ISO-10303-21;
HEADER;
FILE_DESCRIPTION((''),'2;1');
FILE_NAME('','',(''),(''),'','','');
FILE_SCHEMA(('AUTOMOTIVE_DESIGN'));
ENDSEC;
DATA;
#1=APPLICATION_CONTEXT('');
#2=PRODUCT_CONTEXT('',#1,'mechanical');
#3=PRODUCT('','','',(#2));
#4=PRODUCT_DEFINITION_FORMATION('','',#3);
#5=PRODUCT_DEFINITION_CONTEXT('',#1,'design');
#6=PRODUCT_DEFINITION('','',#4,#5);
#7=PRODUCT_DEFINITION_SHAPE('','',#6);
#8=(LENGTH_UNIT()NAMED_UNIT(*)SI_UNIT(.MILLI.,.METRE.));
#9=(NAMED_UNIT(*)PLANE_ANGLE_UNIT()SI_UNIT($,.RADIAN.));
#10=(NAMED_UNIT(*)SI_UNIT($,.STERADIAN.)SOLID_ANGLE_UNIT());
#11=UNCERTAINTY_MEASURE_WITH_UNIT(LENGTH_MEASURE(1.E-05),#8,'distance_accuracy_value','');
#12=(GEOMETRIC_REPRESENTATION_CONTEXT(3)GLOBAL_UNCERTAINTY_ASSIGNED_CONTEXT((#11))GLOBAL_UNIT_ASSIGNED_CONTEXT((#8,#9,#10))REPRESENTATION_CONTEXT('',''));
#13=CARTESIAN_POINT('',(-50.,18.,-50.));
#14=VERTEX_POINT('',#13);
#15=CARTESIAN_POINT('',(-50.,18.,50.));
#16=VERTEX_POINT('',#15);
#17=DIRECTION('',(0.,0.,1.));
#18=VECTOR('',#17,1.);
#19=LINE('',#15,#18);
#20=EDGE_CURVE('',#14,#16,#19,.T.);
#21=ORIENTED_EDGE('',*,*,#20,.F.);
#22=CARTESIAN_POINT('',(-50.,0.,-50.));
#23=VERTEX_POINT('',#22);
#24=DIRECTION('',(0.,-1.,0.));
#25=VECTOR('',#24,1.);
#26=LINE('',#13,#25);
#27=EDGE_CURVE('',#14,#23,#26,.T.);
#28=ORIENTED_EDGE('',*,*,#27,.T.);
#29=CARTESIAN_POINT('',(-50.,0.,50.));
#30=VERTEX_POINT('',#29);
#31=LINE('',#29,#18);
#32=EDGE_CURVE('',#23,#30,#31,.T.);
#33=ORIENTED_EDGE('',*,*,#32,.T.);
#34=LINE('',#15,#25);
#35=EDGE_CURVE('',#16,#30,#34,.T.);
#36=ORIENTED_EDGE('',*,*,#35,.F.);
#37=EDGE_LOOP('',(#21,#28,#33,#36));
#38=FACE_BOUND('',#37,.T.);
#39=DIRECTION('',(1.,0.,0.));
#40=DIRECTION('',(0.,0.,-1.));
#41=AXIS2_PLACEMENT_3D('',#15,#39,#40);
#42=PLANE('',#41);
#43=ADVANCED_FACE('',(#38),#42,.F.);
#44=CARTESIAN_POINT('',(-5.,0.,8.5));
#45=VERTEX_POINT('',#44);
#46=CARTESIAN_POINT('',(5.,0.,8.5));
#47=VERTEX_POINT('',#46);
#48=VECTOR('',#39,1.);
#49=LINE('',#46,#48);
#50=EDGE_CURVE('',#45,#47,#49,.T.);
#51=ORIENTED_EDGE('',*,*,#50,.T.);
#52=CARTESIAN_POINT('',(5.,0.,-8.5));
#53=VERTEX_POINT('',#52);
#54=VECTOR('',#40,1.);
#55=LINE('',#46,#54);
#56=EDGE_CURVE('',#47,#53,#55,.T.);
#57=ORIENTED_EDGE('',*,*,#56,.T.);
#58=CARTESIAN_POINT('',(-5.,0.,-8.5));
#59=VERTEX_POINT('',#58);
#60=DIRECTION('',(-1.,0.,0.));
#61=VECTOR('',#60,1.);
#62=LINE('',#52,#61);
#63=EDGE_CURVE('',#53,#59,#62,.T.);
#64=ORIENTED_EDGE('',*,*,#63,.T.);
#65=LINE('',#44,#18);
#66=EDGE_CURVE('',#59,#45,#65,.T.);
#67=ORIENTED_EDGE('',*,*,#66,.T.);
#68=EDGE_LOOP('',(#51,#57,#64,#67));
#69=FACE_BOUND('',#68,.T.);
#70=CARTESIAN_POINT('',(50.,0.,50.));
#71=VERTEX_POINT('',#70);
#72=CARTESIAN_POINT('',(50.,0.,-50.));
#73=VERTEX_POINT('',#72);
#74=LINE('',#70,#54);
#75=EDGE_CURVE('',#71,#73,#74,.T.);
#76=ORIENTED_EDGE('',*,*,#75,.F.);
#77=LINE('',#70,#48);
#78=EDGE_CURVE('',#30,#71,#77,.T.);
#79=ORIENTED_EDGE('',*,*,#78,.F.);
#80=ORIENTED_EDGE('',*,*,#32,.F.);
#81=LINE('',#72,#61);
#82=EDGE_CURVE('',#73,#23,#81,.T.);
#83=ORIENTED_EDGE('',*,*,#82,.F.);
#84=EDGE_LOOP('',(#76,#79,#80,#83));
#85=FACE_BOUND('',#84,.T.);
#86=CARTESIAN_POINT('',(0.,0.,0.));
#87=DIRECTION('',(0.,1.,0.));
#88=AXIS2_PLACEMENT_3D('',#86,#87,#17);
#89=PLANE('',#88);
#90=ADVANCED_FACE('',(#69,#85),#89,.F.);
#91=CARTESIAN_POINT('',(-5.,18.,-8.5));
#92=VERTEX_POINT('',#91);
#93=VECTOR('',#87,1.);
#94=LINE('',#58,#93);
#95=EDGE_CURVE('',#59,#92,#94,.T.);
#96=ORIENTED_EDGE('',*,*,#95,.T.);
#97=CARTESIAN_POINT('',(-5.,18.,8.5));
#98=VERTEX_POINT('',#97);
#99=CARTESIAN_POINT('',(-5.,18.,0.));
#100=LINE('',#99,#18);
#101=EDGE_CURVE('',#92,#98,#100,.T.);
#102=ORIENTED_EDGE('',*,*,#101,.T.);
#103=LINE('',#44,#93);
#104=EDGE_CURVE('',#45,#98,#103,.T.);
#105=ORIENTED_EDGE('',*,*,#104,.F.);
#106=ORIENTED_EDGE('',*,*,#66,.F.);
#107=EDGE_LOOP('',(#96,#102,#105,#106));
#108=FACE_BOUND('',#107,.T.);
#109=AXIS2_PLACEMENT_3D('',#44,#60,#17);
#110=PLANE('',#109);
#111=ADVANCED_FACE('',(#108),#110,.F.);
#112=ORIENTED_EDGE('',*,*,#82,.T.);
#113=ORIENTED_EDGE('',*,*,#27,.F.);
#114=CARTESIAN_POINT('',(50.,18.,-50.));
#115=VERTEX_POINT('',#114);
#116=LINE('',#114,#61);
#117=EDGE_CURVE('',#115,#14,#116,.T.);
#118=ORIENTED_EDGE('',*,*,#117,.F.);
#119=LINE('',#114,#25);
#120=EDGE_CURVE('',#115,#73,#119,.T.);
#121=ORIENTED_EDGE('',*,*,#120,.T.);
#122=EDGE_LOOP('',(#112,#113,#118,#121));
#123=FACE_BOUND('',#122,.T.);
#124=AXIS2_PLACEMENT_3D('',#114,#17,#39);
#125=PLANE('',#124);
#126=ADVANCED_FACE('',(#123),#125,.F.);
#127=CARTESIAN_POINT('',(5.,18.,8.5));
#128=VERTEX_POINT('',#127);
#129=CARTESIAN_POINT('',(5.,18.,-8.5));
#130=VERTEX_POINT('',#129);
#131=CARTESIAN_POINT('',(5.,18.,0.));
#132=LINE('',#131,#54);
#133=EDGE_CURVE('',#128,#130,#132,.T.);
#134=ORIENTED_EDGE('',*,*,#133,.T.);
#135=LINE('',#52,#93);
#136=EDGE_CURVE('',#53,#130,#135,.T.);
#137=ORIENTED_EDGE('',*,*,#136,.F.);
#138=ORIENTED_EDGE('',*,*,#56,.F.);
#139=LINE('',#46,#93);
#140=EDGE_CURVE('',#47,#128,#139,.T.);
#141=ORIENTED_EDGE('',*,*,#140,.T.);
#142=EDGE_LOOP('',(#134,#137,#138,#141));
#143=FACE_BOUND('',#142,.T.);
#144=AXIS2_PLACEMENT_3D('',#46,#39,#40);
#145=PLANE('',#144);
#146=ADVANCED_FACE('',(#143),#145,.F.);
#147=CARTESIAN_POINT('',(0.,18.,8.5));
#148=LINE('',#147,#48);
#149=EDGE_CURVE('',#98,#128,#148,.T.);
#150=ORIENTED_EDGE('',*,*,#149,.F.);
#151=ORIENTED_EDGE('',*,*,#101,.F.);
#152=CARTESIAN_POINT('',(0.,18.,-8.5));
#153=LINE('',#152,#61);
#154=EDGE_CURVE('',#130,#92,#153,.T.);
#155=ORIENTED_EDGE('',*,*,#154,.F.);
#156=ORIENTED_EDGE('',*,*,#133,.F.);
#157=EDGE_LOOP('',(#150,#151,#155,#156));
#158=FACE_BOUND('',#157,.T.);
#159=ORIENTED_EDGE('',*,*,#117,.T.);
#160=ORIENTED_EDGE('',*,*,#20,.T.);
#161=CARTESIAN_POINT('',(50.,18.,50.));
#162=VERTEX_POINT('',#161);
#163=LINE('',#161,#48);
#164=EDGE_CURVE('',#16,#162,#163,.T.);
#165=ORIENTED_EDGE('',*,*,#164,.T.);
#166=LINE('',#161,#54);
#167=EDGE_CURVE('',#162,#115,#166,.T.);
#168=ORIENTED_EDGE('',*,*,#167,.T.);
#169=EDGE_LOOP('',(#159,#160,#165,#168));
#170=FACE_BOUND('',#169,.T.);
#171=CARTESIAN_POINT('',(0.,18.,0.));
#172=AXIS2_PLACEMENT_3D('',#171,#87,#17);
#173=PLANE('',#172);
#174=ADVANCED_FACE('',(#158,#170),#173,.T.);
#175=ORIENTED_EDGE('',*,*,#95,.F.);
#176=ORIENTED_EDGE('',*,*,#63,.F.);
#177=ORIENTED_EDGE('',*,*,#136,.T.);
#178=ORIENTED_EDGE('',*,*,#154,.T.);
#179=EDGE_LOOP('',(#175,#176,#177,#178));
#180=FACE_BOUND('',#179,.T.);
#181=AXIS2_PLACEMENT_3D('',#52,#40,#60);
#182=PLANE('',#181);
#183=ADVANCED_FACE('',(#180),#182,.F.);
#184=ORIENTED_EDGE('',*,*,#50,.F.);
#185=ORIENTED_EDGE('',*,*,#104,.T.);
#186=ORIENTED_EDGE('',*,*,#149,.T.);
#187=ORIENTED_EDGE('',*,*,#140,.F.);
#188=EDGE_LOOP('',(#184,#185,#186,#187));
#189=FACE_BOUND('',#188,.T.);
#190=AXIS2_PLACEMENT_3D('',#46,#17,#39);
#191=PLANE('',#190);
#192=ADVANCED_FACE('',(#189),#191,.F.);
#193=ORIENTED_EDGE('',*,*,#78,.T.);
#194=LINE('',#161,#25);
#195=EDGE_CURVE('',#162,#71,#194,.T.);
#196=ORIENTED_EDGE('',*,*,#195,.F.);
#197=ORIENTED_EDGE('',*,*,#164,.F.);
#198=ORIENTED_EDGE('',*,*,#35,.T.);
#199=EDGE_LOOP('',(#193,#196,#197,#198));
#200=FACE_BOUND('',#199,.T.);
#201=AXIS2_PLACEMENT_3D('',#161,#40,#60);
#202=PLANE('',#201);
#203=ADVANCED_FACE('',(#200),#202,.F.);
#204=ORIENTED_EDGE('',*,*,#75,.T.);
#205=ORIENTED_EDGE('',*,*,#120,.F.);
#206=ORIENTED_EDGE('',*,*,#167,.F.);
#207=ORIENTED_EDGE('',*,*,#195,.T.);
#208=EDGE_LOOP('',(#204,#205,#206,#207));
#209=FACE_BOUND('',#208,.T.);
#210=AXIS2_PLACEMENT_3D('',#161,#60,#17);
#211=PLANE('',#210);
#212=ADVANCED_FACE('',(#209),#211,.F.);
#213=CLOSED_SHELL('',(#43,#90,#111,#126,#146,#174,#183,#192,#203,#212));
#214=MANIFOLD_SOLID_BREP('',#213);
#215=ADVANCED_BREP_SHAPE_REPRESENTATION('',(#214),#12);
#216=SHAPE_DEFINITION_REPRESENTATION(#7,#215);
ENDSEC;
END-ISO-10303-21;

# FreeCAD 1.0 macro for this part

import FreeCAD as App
import Part
import Sketcher
Q = App.Units.Quantity


def add_polygon(sketch, points):
    """Adds a closed chain of lines whose ends are joined by coincident constraints."""
    first, n = sketch.GeometryCount, len(points)
    for a, b in zip(points, points[1:] + points[:1]):
        sketch.addGeometry(Part.LineSegment(App.Vector(*a, 0), App.Vector(*b, 0)), False)
    for i in range(n):
        sketch.addConstraint(Sketcher.Constraint("Coincident", first + i, 2, first + (i + 1) % n, 1))

doc = App.newDocument("Part")
body = doc.addObject("PartDesign::Body", "Body")

# Sketch on XZ plane
sketch1 = body.newObject("Sketcher::SketchObject", "Sketch")
sketch1.AttachmentSupport = (doc.getObject("XZ_Plane"), [""])
sketch1.MapMode = "FlatFace"
add_polygon(sketch1, [(-50, -50), (-50, 50), (50, 50), (50, -50)])  # lines 0-3
sketch1.addConstraint([
    Sketcher.Constraint("Vertical", 0),
    Sketcher.Constraint("Horizontal", 1),
    Sketcher.Constraint("Vertical", 2),
    Sketcher.Constraint("Horizontal", 3),
    Sketcher.Constraint("Symmetric", 0, 2, 2, 2, -1, 1),
    Sketcher.Constraint("Equal", 3, 0),
    Sketcher.Constraint("DistanceX", 1, 1, 1, 2, Q("100 mm")),
])
pad1 = body.newObject("PartDesign::Pad", "Pad")
pad1.Profile = sketch1
pad1.Length = 18
pad1.Reversed = True

# Sketch on XZ plane
sketch2 = body.newObject("Sketcher::SketchObject", "Sketch001")
sketch2.AttachmentSupport = (doc.getObject("XZ_Plane"), [""])
sketch2.MapMode = "FlatFace"
sketch2.AttachmentOffset = App.Placement(App.Vector(0, 0, -18), App.Rotation())
add_polygon(sketch2, [(-5, -8), (-5, 8), (5, 8), (5, -8)])  # lines 0-3
sketch2.addConstraint([
    Sketcher.Constraint("Vertical", 0),
    Sketcher.Constraint("Horizontal", 1),
    Sketcher.Constraint("Vertical", 2),
    Sketcher.Constraint("Horizontal", 3),
    Sketcher.Constraint("Symmetric", 0, 2, 2, 2, -1, 1),
    Sketcher.Constraint("DistanceX", 1, 1, 1, 2, Q("10 mm")),
    Sketcher.Constraint("DistanceY", 0, 1, 0, 2, Q("17 mm")),
])
pocket1 = body.newObject("PartDesign::Pocket", "Pocket")
pocket1.Profile = sketch2
pocket1.Type = "ThroughAll"
pocket1.Midplane = True

doc.recompute()
